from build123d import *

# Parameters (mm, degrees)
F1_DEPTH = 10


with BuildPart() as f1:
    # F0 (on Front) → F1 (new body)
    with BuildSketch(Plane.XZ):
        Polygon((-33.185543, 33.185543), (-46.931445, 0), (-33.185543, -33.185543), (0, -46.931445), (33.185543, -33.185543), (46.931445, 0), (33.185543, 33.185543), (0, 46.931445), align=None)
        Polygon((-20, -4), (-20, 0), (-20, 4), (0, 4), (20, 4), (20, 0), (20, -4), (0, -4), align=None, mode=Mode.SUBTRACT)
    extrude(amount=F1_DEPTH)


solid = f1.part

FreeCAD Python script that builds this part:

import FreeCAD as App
import Part
import Sketcher
from FreeCAD import Vector
Q = App.Units.Quantity


def add_polygon(sketch, points):
    """Adds a closed chain of lines whose ends are joined by coincident constraints."""
    first, n = sketch.GeometryCount, len(points)
    for a, b in zip(points, points[1:] + points[:1]):
        sketch.addGeometry(Part.LineSegment(App.Vector(*a, 0), App.Vector(*b, 0)), False)
    for i in range(n):
        sketch.addConstraint(Sketcher.Constraint("Coincident", first + i, 2, first + (i + 1) % n, 1))

doc = App.newDocument("Part")
params = doc.addObject("Spreadsheet::Sheet", "Params")
for row, (alias, value) in enumerate([
    ("sketch1_width", "40 mm"),
    ("sketch1_height", "8 mm"),
    ("pad1_length", "10 mm"),
], start=1):
    params.set(f"A{row}", alias)
    params.set(f"B{row}", "=" + value)
    params.setAlias(f"B{row}", alias)

body = doc.addObject("PartDesign::Body", "Body")

# Sketch on XZ plane
sketch1 = body.newObject("Sketcher::SketchObject", "Sketch")
sketch1.AttachmentSupport = (doc.getObject("XZ_Plane"), [""])
sketch1.MapMode = "FlatFace"
add_polygon(sketch1, [(-33.185543, 33.185543), (-46.931445, 0), (-33.185543, -33.185543), (0, -46.931445), (33.185543, -33.185543), (46.931445, 0), (33.185543, 33.185543), (0, 46.931445)])  # lines 0-7
add_polygon(sketch1, [(20, -4), (-20, -4), (-20, 4), (20, 4)])  # lines 8-11
sketch1.addConstraint([
    Sketcher.Constraint("Horizontal", 8),
    Sketcher.Constraint("Vertical", 9),
    Sketcher.Constraint("Horizontal", 10),
    Sketcher.Constraint("Vertical", 11),
    Sketcher.Constraint("Symmetric", 0, 2, 4, 2, -1, 1),
    Sketcher.Constraint("Symmetric", 1, 2, 5, 2, -1, 1),
    Sketcher.Constraint("Symmetric", 2, 2, 6, 2, -1, 1),
    Sketcher.Constraint("Symmetric", 3, 2, 7, 2, -1, 1),
    Sketcher.Constraint("Symmetric", 8, 2, 10, 2, -1, 1),
    Sketcher.Constraint("Symmetric", 1, 2, 3, 2, -2),
    Sketcher.Constraint("PointOnObject", 0, 2, -1),
    Sketcher.Constraint("PointOnObject", 2, 2, -2),
    Sketcher.Constraint("Perpendicular", 0, 2),
    Sketcher.Constraint("Equal", 1, 2),
    Sketcher.Constraint("DistanceX", 8, 2, 8, 1, 40.0),
    Sketcher.Constraint("DistanceY", 9, 1, 9, 2, 8.0),
    Sketcher.Constraint("Angle", 0, Q("-112.5 deg")),
    Sketcher.Constraint("DistanceX", 0, 2, 1, 2, 13.745902),
])
sketch1.setExpression("Constraints[26]", "Params.sketch1_width")
sketch1.setExpression("Constraints[27]", "Params.sketch1_height")
pad1 = body.newObject("PartDesign::Pad", "Pad")
pad1.Profile = sketch1
pad1.setExpression("Length", "Params.pad1_length")

doc.recompute()
